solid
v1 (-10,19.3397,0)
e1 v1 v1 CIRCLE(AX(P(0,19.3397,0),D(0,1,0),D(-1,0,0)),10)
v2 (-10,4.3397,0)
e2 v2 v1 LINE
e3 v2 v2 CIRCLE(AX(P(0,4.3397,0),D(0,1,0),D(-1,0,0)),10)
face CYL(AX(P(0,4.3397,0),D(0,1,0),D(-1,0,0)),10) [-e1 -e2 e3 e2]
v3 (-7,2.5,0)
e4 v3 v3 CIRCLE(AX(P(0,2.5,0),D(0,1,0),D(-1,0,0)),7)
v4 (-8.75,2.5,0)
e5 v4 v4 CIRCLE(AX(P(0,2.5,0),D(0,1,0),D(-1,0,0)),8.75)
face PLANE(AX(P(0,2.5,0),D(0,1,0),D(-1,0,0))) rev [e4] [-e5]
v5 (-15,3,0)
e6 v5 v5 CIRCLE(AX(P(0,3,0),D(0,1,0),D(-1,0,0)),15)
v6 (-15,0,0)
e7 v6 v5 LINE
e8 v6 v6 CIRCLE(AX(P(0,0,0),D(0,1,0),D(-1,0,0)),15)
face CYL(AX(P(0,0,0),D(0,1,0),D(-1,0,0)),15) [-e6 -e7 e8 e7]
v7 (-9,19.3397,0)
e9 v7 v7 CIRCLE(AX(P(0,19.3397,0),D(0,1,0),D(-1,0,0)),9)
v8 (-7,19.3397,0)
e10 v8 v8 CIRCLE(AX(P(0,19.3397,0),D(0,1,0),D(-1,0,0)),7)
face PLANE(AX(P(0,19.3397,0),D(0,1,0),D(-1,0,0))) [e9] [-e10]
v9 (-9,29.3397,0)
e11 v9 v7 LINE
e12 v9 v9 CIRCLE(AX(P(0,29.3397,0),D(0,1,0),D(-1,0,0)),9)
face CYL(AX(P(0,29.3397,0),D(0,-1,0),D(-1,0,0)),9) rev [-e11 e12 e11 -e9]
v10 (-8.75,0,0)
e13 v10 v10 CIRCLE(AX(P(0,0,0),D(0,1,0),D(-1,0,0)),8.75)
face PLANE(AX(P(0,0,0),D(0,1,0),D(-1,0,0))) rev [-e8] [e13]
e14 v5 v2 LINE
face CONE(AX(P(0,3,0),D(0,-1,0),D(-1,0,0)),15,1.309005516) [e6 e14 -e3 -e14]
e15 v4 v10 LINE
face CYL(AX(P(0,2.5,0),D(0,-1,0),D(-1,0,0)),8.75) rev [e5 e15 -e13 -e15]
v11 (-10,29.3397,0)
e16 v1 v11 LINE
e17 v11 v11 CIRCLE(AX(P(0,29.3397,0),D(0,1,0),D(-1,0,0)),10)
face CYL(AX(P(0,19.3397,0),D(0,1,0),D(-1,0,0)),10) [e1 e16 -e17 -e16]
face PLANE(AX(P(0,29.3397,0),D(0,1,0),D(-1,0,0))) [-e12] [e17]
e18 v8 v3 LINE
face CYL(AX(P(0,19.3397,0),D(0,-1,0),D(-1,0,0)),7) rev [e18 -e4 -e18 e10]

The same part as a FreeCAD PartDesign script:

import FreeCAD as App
import Part
import Sketcher
from FreeCAD import Vector
Q = App.Units.Quantity

doc = App.newDocument("Part")
body = doc.addObject("PartDesign::Body", "Body")

# Sketch on XY plane
sketch1 = body.newObject("Sketcher::SketchObject", "Sketch")
sketch1.AttachmentSupport = (doc.getObject("XY_Plane"), [""])
sketch1.MapMode = "FlatFace"
sketch1.addGeometry(Part.LineSegment(Vector(-15, 3, 0), Vector(-15, 0, 0)), False)
sketch1.addGeometry(Part.LineSegment(Vector(-15, 0, 0), Vector(-8.8, 0, 0)), False)
sketch1.addGeometry(Part.LineSegment(Vector(-8.8, 0, 0), Vector(-8.8, 2.5, 0)), False)
sketch1.addGeometry(Part.LineSegment(Vector(-8.8, 2.5, 0), Vector(-7, 2.5, 0)), False)
sketch1.addGeometry(Part.LineSegment(Vector(-7, 2.5, 0), Vector(-7, 19.3, 0)), False)
sketch1.addGeometry(Part.LineSegment(Vector(-7, 19.3, 0), Vector(-9, 19.3, 0)), False)
sketch1.addGeometry(Part.LineSegment(Vector(-9, 19.3, 0), Vector(-9, 29.3, 0)), False)
sketch1.addGeometry(Part.LineSegment(Vector(-9, 29.3, 0), Vector(-10, 29.3, 0)), False)
sketch1.addGeometry(Part.LineSegment(Vector(-10, 29.3, 0), Vector(-10, 4.3, 0)), False)
sketch1.addGeometry(Part.LineSegment(Vector(-10, 4.3, 0), Vector(-15, 3, 0)), False)
sketch1.addConstraint(Sketcher.Constraint("Coincident", 0, 2, 1, 1))
sketch1.addConstraint(Sketcher.Constraint("Coincident", 1, 2, 2, 1))
sketch1.addConstraint(Sketcher.Constraint("Coincident", 2, 2, 3, 1))
sketch1.addConstraint(Sketcher.Constraint("Coincident", 3, 2, 4, 1))
sketch1.addConstraint(Sketcher.Constraint("Coincident", 4, 2, 5, 1))
sketch1.addConstraint(Sketcher.Constraint("Coincident", 5, 2, 6, 1))
sketch1.addConstraint(Sketcher.Constraint("Coincident", 6, 2, 7, 1))
sketch1.addConstraint(Sketcher.Constraint("Coincident", 7, 2, 8, 1))
sketch1.addConstraint(Sketcher.Constraint("Coincident", 8, 2, 9, 1))
sketch1.addConstraint(Sketcher.Constraint("Coincident", 9, 2, 0, 1))
sketch1.addConstraint(Sketcher.Constraint("Vertical", 0))
sketch1.addConstraint(Sketcher.Constraint("Horizontal", 1))
sketch1.addConstraint(Sketcher.Constraint("Vertical", 2))
sketch1.addConstraint(Sketcher.Constraint("Horizontal", 3))
sketch1.addConstraint(Sketcher.Constraint("Vertical", 4))
sketch1.addConstraint(Sketcher.Constraint("Horizontal", 5))
sketch1.addConstraint(Sketcher.Constraint("Vertical", 6))
sketch1.addConstraint(Sketcher.Constraint("Horizontal", 7))
sketch1.addConstraint(Sketcher.Constraint("Vertical", 8))
sketch1.addConstraint(Sketcher.Constraint("PointOnObject", 0, 2, -1))
sketch1.addConstraint(Sketcher.Constraint("DistanceX", 7, 2, 7, 1, 1.0))
sketch1.addConstraint(Sketcher.Constraint("DistanceY", 0, 2, 0, 1, 3.0))
sketch1.addConstraint(Sketcher.Constraint("DistanceY", 6, 1, 6, 2, 10.0))
sketch1.addConstraint(Sketcher.Constraint("DistanceY", 2, 1, 2, 2, 2.5))
sketch1.addConstraint(Sketcher.Constraint("DistanceX", 0, 2, -1, 1, 15.0))
sketch1.addConstraint(Sketcher.Constraint("DistanceX", 3, 2, -1, 1, 7.0))
sketch1.addConstraint(Sketcher.Constraint("DistanceX", 7, 2, -1, 1, 10.0))
sketch1.addConstraint(Sketcher.Constraint("DistanceY", 8, 2, 5, 2, 15.0))
sketch1.addConstraint(Sketcher.Constraint("DistanceX", 1, 2, -1, 1, 8.75))
sketch1.addConstraint(Sketcher.Constraint("Angle", 9, Q("-165.0005 deg")))
revolution = body.newObject("PartDesign::Revolution", "Revolution")
revolution.Profile = sketch1
revolution.ReferenceAxis = (sketch1, ["V_Axis"])
revolution.Angle = 360

doc.recompute()
